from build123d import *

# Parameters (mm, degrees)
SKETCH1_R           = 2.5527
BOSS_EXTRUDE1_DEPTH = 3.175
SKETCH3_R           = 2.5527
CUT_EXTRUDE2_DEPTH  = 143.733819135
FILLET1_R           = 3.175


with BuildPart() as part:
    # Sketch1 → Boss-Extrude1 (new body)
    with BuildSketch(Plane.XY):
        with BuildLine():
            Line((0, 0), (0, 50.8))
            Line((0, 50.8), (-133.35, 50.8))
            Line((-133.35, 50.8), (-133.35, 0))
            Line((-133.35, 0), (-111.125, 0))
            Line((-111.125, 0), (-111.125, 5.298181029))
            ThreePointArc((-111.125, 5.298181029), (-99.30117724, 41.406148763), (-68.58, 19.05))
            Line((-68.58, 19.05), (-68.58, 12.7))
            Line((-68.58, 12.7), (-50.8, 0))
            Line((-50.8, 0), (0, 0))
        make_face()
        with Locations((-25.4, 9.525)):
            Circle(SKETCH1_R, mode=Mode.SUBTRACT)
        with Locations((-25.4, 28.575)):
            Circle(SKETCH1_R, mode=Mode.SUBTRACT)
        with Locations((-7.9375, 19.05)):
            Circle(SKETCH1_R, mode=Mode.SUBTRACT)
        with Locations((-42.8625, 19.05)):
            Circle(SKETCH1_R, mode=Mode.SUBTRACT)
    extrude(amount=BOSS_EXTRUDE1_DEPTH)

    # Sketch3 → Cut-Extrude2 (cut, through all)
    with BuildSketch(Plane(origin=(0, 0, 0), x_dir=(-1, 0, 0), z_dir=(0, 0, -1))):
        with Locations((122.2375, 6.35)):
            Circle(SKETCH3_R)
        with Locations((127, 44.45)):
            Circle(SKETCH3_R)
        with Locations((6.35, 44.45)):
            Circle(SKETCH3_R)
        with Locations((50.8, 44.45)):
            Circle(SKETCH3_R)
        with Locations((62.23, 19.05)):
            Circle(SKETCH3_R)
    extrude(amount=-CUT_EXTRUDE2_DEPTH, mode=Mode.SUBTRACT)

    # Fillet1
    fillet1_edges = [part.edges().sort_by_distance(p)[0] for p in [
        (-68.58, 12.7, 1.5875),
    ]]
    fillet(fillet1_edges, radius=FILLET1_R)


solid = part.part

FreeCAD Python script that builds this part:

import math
import FreeCAD as App
import Part
import Sketcher
Q = App.Units.Quantity


def edges_at(feature, points):
    """Names of the edges that pass closest to the given points."""
    edges = feature.Shape.Edges
    near = lambda p: min(range(len(edges)), key=lambda i: edges[i].distToShape(Part.Vertex(*p))[0])
    return sorted({f"Edge{near(p) + 1}" for p in points})

doc = App.newDocument("Part")
body = doc.addObject("PartDesign::Body", "Body")

sketch1 = body.newObject("Sketcher::SketchObject", "Sketch")
sketch1.AttachmentSupport = (doc.getObject("XY_Plane"), [""])
sketch1.MapMode = "FlatFace"
sketch1.addGeometry([
    Part.LineSegment(App.Vector(0, 0, 0), App.Vector(0, 50.8, 0)),
    Part.LineSegment(App.Vector(0, 50.8, 0), App.Vector(-133.3, 50.8, 0)),
    Part.LineSegment(App.Vector(-133.3, 50.8, 0), App.Vector(-133.3, 0, 0)),
    Part.LineSegment(App.Vector(-133.3, 0, 0), App.Vector(-111.1, 0, 0)),
    Part.LineSegment(App.Vector(-111.1, 0, 0), App.Vector(-111.1, 5.3, 0)),
    Part.ArcOfCircle(Part.Circle(App.Vector(-92.1, 19.1, 0), App.Vector(0, 0, 1), 23.5), math.radians(0), math.radians(216)),
    Part.LineSegment(App.Vector(-68.6, 19.1, 0), App.Vector(-68.6, 12.7, 0)),
    Part.LineSegment(App.Vector(-68.6, 12.7, 0), App.Vector(-50.8, 0, 0)),
    Part.LineSegment(App.Vector(-50.8, 0, 0), App.Vector(0, 0, 0)),
    Part.Circle(App.Vector(-25.4, 9.5, 0), App.Vector(0, 0, 1), 2.6),
    Part.Circle(App.Vector(-42.9, 19.1, 0), App.Vector(0, 0, 1), 2.6),
    Part.Circle(App.Vector(-25.4, 28.6, 0), App.Vector(0, 0, 1), 2.6),
    Part.Circle(App.Vector(-7.9, 19.1, 0), App.Vector(0, 0, 1), 2.6),
], False)
sketch1.addConstraint([
    Sketcher.Constraint("Coincident", 0, 2, 1, 1),
    Sketcher.Constraint("Coincident", 1, 2, 2, 1),
    Sketcher.Constraint("Coincident", 2, 2, 3, 1),
    Sketcher.Constraint("Coincident", 3, 2, 4, 1),
    Sketcher.Constraint("Coincident", 4, 2, 5, 2),
    Sketcher.Constraint("Tangent", 5, 1, 6, 1),
    Sketcher.Constraint("Coincident", 6, 2, 7, 1),
    Sketcher.Constraint("Coincident", 7, 2, 8, 1),
    Sketcher.Constraint("Coincident", 8, 2, 0, 1),
    Sketcher.Constraint("Vertical", 0),
    Sketcher.Constraint("Horizontal", 1),
    Sketcher.Constraint("Vertical", 2),
    Sketcher.Constraint("Horizontal", 3),
    Sketcher.Constraint("Vertical", 4),
    Sketcher.Constraint("Vertical", 6),
    Sketcher.Constraint("Horizontal", 8),
    Sketcher.Constraint("Coincident", 8, 2, -1, 1),
    Sketcher.Constraint("Equal", 9, 10),
    Sketcher.Constraint("Equal", 10, 11),
    Sketcher.Constraint("Equal", 11, 12),
    Sketcher.Constraint("PointOnObject", 2, 2, -1),
    Sketcher.Constraint("Horizontal", 5, 3, 10, 3),
    Sketcher.Constraint("Horizontal", 10, 3, 12, 3),
    Sketcher.Constraint("Vertical", 9, 3, 11, 3),
    Sketcher.Constraint("Equal", 8, 0),
    Sketcher.Constraint("DistanceX", 8, 1, 8, 2, Q("2 in")),
    Sketcher.Constraint("Diameter", 9, Q("0.201 in")),
    Sketcher.Constraint("DistanceX", 9, 3, -1, 1, Q("1 in")),
    Sketcher.Constraint("Radius", 5, Q("0.925 in")),
    Sketcher.Constraint("DistanceX", 1, 2, 1, 1, Q("5.25 in")),
    Sketcher.Constraint("DistanceY", 6, 2, 6, 1, Q("0.25 in")),
    Sketcher.Constraint("DistanceX", 5, 1, -1, 1, Q("2.7 in")),
    Sketcher.Constraint("DistanceY", -1, 1, 6, 2, Q("0.5 in")),
    Sketcher.Constraint("DistanceX", 3, 1, 3, 2, Q("0.875 in")),
    Sketcher.Constraint("DistanceY", 9, 3, 11, 3, Q("0.75 in")),
    Sketcher.Constraint("DistanceY", -1, 1, 9, 3, Q("0.375 in")),
    Sketcher.Constraint("DistanceX", 10, 3, -1, 1, Q("1.6875 in")),
    Sketcher.Constraint("DistanceX", 12, 3, -1, 1, Q("0.3125 in")),
])
pad1 = body.newObject("PartDesign::Pad", "Pad")
pad1.Profile = sketch1
pad1.Length = Q("0.125 in")

sketch2 = body.newObject("Sketcher::SketchObject", "Sketch001")
sketch2.AttachmentSupport = (doc.getObject("XY_Plane"), [""])
sketch2.MapMode = "FlatFace"
sketch2.addGeometry([
    Part.Circle(App.Vector(-122.2, 6.3, 0), App.Vector(0, 0, 1), 2.6),
    Part.Circle(App.Vector(-127, 44.5, 0), App.Vector(0, 0, 1), 2.6),
    Part.Circle(App.Vector(-6.3, 44.5, 0), App.Vector(0, 0, 1), 2.6),
    Part.Circle(App.Vector(-50.8, 44.5, 0), App.Vector(0, 0, 1), 2.6),
    Part.Circle(App.Vector(-62.2, 19.1, 0), App.Vector(0, 0, 1), 2.6),
], False)
sketch2.addConstraint([
    Sketcher.Constraint("Equal", 0, 1),
    Sketcher.Constraint("Equal", 1, 2),
    Sketcher.Constraint("Equal", 2, 3),
    Sketcher.Constraint("Equal", 3, 4),
    Sketcher.Constraint("Horizontal", 1, 3, 2, 3),
    Sketcher.Constraint("Horizontal", 2, 3, 3, 3),
    Sketcher.Constraint("Diameter", 0, Q("0.201 in")),
    Sketcher.Constraint("DistanceX", 1, 3, -1, 1, Q("5 in")),
    Sketcher.Constraint("DistanceX", 3, 3, -1, 1, Q("2 in")),
    Sketcher.Constraint("DistanceY", 4, 3, 3, 3, Q("1 in")),
    Sketcher.Constraint("DistanceY", 0, 3, 1, 3, Q("1.5 in")),
    Sketcher.Constraint("DistanceX", 4, 3, 2, 3, Q("2.2 in")),
    Sketcher.Constraint("DistanceY", -1, 1, 0, 3, Q("0.25 in")),
    Sketcher.Constraint("DistanceX", 2, 3, -1, 1, Q("0.25 in")),
    Sketcher.Constraint("DistanceX", 0, 3, -1, 1, Q("4.8125 in")),
])
pocket1 = body.newObject("PartDesign::Pocket", "Pocket")
pocket1.Profile = sketch2
pocket1.Type = "ThroughAll"
pocket1.Reversed = True
doc.recompute()

fillet = body.newObject("PartDesign::Fillet", "Fillet")
fillet.Base = (pocket1, edges_at(pocket1, [(-68.58, 12.7, 1.587)]))
fillet.Radius = Q("0.125 in")

doc.recompute()
